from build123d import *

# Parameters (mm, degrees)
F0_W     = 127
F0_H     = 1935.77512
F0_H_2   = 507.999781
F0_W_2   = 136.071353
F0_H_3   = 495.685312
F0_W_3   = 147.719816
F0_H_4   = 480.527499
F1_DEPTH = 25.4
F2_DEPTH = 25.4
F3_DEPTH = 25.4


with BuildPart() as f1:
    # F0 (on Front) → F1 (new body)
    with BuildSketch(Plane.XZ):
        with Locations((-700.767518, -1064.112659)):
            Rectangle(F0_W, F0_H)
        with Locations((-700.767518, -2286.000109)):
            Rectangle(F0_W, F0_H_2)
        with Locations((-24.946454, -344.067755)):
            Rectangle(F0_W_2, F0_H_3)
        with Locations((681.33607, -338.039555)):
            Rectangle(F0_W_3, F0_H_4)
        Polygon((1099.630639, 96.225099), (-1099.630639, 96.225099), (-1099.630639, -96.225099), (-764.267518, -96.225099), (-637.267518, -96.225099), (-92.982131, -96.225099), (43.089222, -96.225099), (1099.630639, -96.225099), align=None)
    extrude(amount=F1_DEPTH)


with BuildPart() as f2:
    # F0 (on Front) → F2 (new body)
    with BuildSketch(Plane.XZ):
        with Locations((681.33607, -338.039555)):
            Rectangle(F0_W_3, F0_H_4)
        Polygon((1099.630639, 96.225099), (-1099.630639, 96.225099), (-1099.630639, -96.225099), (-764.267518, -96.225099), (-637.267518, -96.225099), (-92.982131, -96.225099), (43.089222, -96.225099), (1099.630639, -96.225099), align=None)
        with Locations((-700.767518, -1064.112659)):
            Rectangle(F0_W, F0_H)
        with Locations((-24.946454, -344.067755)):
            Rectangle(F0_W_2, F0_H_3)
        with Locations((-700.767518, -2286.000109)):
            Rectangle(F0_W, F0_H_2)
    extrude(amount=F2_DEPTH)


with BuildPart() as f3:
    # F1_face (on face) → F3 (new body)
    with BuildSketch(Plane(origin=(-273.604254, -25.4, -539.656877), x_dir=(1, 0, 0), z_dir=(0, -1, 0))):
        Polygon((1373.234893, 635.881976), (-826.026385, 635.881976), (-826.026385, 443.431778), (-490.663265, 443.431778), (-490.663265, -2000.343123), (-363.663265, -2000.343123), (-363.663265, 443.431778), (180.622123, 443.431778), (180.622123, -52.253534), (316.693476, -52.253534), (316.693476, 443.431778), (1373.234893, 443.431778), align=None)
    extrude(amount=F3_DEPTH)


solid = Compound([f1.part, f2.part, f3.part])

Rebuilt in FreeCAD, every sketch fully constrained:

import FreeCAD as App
import Part
import Sketcher
Q = App.Units.Quantity


def add_polygon(sketch, points):
    """Adds a closed chain of lines whose ends are joined by coincident constraints."""
    first, n = sketch.GeometryCount, len(points)
    for a, b in zip(points, points[1:] + points[:1]):
        sketch.addGeometry(Part.LineSegment(App.Vector(*a, 0), App.Vector(*b, 0)), False)
    for i in range(n):
        sketch.addConstraint(Sketcher.Constraint("Coincident", first + i, 2, first + (i + 1) % n, 1))

doc = App.newDocument("Part")
body = doc.addObject("PartDesign::Body", "Body")
body.AllowCompound = True

# Sketch on XZ plane
sketch1 = doc.addObject("Sketcher::SketchObject", "Sketch")
body.addObject(sketch1)
sketch1.AttachmentSupport = (doc.XZ_Plane, [""])
sketch1.MapMode = "FlatFace"
add_polygon(sketch1, [(-764, -2540), (-637, -2540), (-637, -96), (-93, -96), (-93, -592), (43, -592), (43, -96), (1100, -96), (1100, 96), (-1100, 96), (-1100, -96), (-764, -96)])  # lines 0-11
add_polygon(sketch1, [(607, -98), (607, -578), (755, -578), (755, -98)])  # lines 12-15
sketch1.addConstraint([
    Sketcher.Constraint("Horizontal", 0),
    Sketcher.Constraint("Vertical", 1),
    Sketcher.Constraint("Horizontal", 2),
    Sketcher.Constraint("Vertical", 3),
    Sketcher.Constraint("Horizontal", 4),
    Sketcher.Constraint("Vertical", 5),
    Sketcher.Constraint("Horizontal", 6),
    Sketcher.Constraint("Vertical", 7),
    Sketcher.Constraint("Horizontal", 8),
    Sketcher.Constraint("Vertical", 9),
    Sketcher.Constraint("Horizontal", 10),
    Sketcher.Constraint("Vertical", 11),
    Sketcher.Constraint("Vertical", 12),
    Sketcher.Constraint("Horizontal", 13),
    Sketcher.Constraint("Vertical", 14),
    Sketcher.Constraint("Horizontal", 15),
    Sketcher.Constraint("Symmetric", 6, 2, 8, 2, -1, 1),
    Sketcher.Constraint("Horizontal", 2, 2, 5, 2),
    Sketcher.Constraint("Horizontal", 6, 2, 9, 2),
    Sketcher.Constraint("DistanceX", 0, 1, 0, 2, Q("5 in")),
    Sketcher.Constraint("DistanceY", 0, 2, -1, 1, Q("100 in")),
    Sketcher.Constraint("DistanceY", 1, 1, 1, 2, Q("2443.7749 mm")),
    Sketcher.Constraint("DistanceY", 12, 2, 12, 1, Q("480.527499 mm")),
    Sketcher.Constraint("DistanceX", 10, 1, 10, 2, Q("335.363121 mm")),
    Sketcher.Constraint("DistanceY", 3, 2, 3, 1, Q("495.685312 mm")),
    Sketcher.Constraint("DistanceX", 2, 1, 2, 2, Q("544.285387 mm")),
    Sketcher.Constraint("DistanceX", 4, 1, 4, 2, Q("136.071353 mm")),
    Sketcher.Constraint("DistanceX", 6, 1, 6, 2, Q("1056.541416 mm")),
    Sketcher.Constraint("DistanceX", 13, 1, 13, 2, Q("147.719816 mm")),
    Sketcher.Constraint("DistanceX", -1, 1, 12, 2, Q("607.476162 mm")),
    Sketcher.Constraint("DistanceY", 12, 2, -1, 1, Q("578.303304 mm")),
])
pad1 = doc.addObject("PartDesign::Pad", "Pad")
body.addObject(pad1)
pad1.Profile = sketch1
pad1.Length = Q("1 in")
body2 = doc.addObject("PartDesign::Body", "Body001")
body2.AllowCompound = True

# Sketch on XZ plane
sketch2 = doc.addObject("Sketcher::SketchObject", "Sketch001")
body2.addObject(sketch2)
sketch2.AttachmentSupport = (doc.getObject("XZ_Plane001"), [""])
sketch2.MapMode = "FlatFace"
add_polygon(sketch2, [(607, -98), (607, -578), (755, -578), (755, -98)])  # lines 0-3
add_polygon(sketch2, [(1100, -96), (1100, 96), (-1100, 96), (-1100, -96), (-764, -96), (-764, -2540), (-637, -2540), (-637, -96), (-93, -96), (-93, -592), (43, -592), (43, -96)])  # lines 4-15
sketch2.addConstraint([
    Sketcher.Constraint("Vertical", 0),
    Sketcher.Constraint("Horizontal", 1),
    Sketcher.Constraint("Vertical", 2),
    Sketcher.Constraint("Horizontal", 3),
    Sketcher.Constraint("Vertical", 4),
    Sketcher.Constraint("Horizontal", 5),
    Sketcher.Constraint("Vertical", 6),
    Sketcher.Constraint("Horizontal", 7),
    Sketcher.Constraint("Vertical", 8),
    Sketcher.Constraint("Horizontal", 9),
    Sketcher.Constraint("Vertical", 10),
    Sketcher.Constraint("Horizontal", 11),
    Sketcher.Constraint("Vertical", 12),
    Sketcher.Constraint("Horizontal", 13),
    Sketcher.Constraint("Vertical", 14),
    Sketcher.Constraint("Horizontal", 15),
    Sketcher.Constraint("Symmetric", 4, 2, 6, 2, -1, 1),
    Sketcher.Constraint("Horizontal", 7, 2, 10, 2),
    Sketcher.Constraint("Horizontal", 11, 2, 14, 2),
    Sketcher.Constraint("DistanceX", 9, 1, 9, 2, Q("5 in")),
    Sketcher.Constraint("DistanceY", 8, 2, -1, 1, Q("100 in")),
    Sketcher.Constraint("DistanceY", 0, 2, 0, 1, Q("480.527499 mm")),
    Sketcher.Constraint("DistanceY", 4, 1, 4, 2, Q("192.450198 mm")),
    Sketcher.Constraint("DistanceX", 7, 1, 7, 2, Q("335.363121 mm")),
    Sketcher.Constraint("DistanceY", 12, 2, 12, 1, Q("495.685312 mm")),
    Sketcher.Constraint("DistanceX", 5, 2, 3, 2, Q("1707.106801 mm")),
    Sketcher.Constraint("DistanceX", 1, 1, 1, 2, Q("147.719816 mm")),
    Sketcher.Constraint("DistanceX", 5, 2, 5, 1, Q("2199.261278 mm")),
    Sketcher.Constraint("DistanceX", 11, 1, 11, 2, Q("544.285387 mm")),
    Sketcher.Constraint("DistanceX", 13, 1, 13, 2, Q("136.071353 mm")),
    Sketcher.Constraint("DistanceY", 0, 2, -1, 1, Q("578.303304 mm")),
])
pad2 = doc.addObject("PartDesign::Pad", "Pad001")
body2.addObject(pad2)
pad2.Profile = sketch2
pad2.Length = Q("1 in")
body3 = doc.addObject("PartDesign::Body", "Body002")

# Sketch on XZ plane
sketch3 = doc.addObject("Sketcher::SketchObject", "Sketch002")
body3.addObject(sketch3)
sketch3.AttachmentSupport = (doc.getObject("XZ_Plane002"), [""])
sketch3.MapMode = "FlatFace"
sketch3.AttachmentOffset = App.Placement(App.Vector(0, 0, 1 * 25.4), App.Rotation())
add_polygon(sketch3, [(1100, 96), (-1100, 96), (-1100, -96), (-764, -96), (-764, -2540), (-637, -2540), (-637, -96), (-93, -96), (-93, -592), (43, -592), (43, -96), (1100, -96)])  # lines 0-11
sketch3.addConstraint([
    Sketcher.Constraint("Horizontal", 0),
    Sketcher.Constraint("Vertical", 1),
    Sketcher.Constraint("Horizontal", 2),
    Sketcher.Constraint("Vertical", 3),
    Sketcher.Constraint("Horizontal", 4),
    Sketcher.Constraint("Vertical", 5),
    Sketcher.Constraint("Horizontal", 6),
    Sketcher.Constraint("Vertical", 7),
    Sketcher.Constraint("Horizontal", 8),
    Sketcher.Constraint("Vertical", 9),
    Sketcher.Constraint("Horizontal", 10),
    Sketcher.Constraint("Vertical", 11),
    Sketcher.Constraint("Symmetric", 0, 2, 10, 2, -1, 1),
    Sketcher.Constraint("Horizontal", 2, 2, 5, 2),
    Sketcher.Constraint("Horizontal", 6, 2, 9, 2),
    Sketcher.Constraint("DistanceX", 4, 1, 4, 2, Q("5 in")),
    Sketcher.Constraint("DistanceY", 3, 2, -1, 1, Q("100 in")),
    Sketcher.Constraint("DistanceY", 1, 2, 1, 1, Q("192.450198 mm")),
    Sketcher.Constraint("DistanceX", 2, 1, 2, 2, Q("335.36312 mm")),
    Sketcher.Constraint("DistanceX", 6, 1, 6, 2, Q("544.285388 mm")),
    Sketcher.Constraint("DistanceY", 7, 2, 7, 1, Q("495.685312 mm")),
    Sketcher.Constraint("DistanceX", 0, 2, 0, 1, Q("2199.261278 mm")),
    Sketcher.Constraint("DistanceX", 8, 1, 8, 2, Q("136.071353 mm")),
])
pad3 = doc.addObject("PartDesign::Pad", "Pad002")
body3.addObject(pad3)
pad3.Profile = sketch3
pad3.Length = Q("1 in")

doc.recompute()
